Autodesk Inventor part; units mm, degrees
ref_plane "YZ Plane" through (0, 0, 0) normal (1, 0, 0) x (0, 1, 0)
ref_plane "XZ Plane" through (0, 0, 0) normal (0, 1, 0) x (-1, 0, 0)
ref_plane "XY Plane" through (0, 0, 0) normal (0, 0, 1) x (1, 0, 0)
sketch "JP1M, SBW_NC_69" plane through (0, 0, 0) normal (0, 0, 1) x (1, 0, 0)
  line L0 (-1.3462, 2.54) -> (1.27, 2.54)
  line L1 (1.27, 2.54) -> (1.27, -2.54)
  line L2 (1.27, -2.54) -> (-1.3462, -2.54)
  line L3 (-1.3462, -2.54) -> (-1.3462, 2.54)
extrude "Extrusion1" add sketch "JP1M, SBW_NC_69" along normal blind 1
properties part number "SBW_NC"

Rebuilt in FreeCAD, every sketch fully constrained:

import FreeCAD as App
import Part
import Sketcher

V = App.Vector
Q = App.Units.Quantity


def add_polygon(sketch, points):
    """Adds a closed chain of lines whose ends are joined by coincident constraints."""
    first, n = sketch.GeometryCount, len(points)
    for a, b in zip(points, points[1:] + points[:1]):
        sketch.addGeometry(Part.LineSegment(App.Vector(*a, 0), App.Vector(*b, 0)), False)
    for i in range(n):
        sketch.addConstraint(Sketcher.Constraint("Coincident", first + i, 2, first + (i + 1) % n, 1))

doc = App.newDocument("Part")
body = doc.addObject("PartDesign::Body", "Body")

# Sketch on XY plane
sketch1 = body.newObject("Sketcher::SketchObject", "Sketch")
sketch1.AttachmentSupport = (doc.getObject("XY_Plane"), [""])
sketch1.MapMode = "FlatFace"
add_polygon(sketch1, [(1.3, 2.5), (-1.3, 2.5), (-1.3, -2.5), (1.3, -2.5)])  # lines 0-3
sketch1.addConstraint([
    Sketcher.Constraint("Horizontal", 0),
    Sketcher.Constraint("Vertical", 1),
    Sketcher.Constraint("Horizontal", 2),
    Sketcher.Constraint("Vertical", 3),
    Sketcher.Constraint("DistanceY", 1, 2, 1, 1, Q("0.2 in")),
    Sketcher.Constraint("DistanceY", -1, 1, 0, 2, Q("0.1 in")),
    Sketcher.Constraint("DistanceX", 0, 2, 0, 1, Q("0.103 in")),
    Sketcher.Constraint("DistanceX", -1, 1, 2, 2, Q("0.05 in")),
])
pad1 = body.newObject("PartDesign::Pad", "Pad")
pad1.Profile = sketch1
pad1.Length = 1

doc.recompute()
